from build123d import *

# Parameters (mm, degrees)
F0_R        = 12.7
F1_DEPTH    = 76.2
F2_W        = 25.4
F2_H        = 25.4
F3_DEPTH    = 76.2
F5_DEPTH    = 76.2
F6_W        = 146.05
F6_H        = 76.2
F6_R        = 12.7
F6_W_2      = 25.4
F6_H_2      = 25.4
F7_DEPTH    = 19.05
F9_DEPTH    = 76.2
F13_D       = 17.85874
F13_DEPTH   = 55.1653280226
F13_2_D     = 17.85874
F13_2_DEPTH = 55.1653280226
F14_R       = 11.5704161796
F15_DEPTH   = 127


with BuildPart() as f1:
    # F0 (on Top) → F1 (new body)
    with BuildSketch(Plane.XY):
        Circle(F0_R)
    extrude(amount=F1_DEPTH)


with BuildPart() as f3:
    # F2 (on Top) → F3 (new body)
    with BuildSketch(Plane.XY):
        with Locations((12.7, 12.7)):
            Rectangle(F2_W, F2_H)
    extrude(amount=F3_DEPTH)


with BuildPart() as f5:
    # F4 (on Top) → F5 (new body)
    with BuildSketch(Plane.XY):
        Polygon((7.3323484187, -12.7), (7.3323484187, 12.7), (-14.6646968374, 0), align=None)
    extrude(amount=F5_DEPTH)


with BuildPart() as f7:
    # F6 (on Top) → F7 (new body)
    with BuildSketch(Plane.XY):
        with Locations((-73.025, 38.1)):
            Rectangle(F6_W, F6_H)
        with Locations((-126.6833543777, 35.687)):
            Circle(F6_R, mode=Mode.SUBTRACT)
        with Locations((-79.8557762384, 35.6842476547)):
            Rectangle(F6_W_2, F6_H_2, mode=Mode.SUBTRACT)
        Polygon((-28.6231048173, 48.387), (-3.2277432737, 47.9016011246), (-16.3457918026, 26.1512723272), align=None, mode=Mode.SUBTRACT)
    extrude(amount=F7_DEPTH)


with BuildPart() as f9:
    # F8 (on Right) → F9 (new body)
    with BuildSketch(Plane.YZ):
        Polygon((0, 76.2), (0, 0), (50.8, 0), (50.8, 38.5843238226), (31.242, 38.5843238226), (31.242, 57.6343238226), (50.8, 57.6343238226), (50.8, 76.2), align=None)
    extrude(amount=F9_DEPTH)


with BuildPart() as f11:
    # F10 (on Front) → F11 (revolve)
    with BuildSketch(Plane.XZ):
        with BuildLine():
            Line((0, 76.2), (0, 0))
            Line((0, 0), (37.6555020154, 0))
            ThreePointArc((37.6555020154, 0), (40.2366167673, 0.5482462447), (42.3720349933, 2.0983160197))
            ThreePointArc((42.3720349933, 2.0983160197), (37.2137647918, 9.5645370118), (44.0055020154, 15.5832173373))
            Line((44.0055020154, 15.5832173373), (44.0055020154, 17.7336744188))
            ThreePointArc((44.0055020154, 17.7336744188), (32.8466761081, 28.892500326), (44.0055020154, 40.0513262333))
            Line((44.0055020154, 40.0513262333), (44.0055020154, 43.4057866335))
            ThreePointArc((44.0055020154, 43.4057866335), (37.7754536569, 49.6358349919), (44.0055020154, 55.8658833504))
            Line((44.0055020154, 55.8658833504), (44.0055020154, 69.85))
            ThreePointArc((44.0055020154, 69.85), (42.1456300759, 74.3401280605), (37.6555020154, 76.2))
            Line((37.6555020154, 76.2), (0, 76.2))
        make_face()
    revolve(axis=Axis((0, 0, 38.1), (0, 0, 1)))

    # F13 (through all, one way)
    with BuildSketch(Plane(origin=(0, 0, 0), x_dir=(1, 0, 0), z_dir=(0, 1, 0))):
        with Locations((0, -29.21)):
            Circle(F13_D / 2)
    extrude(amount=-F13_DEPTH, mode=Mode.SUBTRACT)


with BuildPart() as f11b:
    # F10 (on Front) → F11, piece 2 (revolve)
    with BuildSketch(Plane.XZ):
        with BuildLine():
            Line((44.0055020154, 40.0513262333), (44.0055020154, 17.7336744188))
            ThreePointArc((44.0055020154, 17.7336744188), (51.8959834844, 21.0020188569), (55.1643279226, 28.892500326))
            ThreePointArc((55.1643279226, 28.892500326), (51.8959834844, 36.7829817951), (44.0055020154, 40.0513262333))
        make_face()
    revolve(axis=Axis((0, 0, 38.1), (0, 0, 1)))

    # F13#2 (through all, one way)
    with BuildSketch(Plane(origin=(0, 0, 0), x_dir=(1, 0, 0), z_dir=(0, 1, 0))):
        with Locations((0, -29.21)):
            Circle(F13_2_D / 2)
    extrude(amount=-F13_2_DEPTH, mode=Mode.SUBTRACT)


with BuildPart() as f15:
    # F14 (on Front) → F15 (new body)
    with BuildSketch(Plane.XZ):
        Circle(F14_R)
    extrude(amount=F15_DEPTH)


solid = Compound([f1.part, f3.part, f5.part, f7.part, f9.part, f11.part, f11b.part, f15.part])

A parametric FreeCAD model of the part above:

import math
import FreeCAD as App
import Part
import Sketcher
from FreeCAD import Vector
Q = App.Units.Quantity


def add_polygon(sketch, points):
    """Adds a closed chain of lines whose ends are joined by coincident constraints."""
    first, n = sketch.GeometryCount, len(points)
    for a, b in zip(points, points[1:] + points[:1]):
        sketch.addGeometry(Part.LineSegment(App.Vector(*a, 0), App.Vector(*b, 0)), False)
    for i in range(n):
        sketch.addConstraint(Sketcher.Constraint("Coincident", first + i, 2, first + (i + 1) % n, 1))

doc = App.newDocument("Part")
body = doc.addObject("PartDesign::Body", "Body")

sketch1 = body.newObject("Sketcher::SketchObject", "Sketch")
sketch1.AttachmentSupport = (doc.getObject("XY_Plane"), [""])
sketch1.MapMode = "FlatFace"
sketch1.addGeometry(Part.Circle(Vector(0, 0, 0), Vector(0, 0, 1), 12.7), False)
sketch1.addConstraint([
    Sketcher.Constraint("Coincident", 0, 3, -1, 1),
    Sketcher.Constraint("Diameter", 0, Q("1 in")),
])
pad1 = body.newObject("PartDesign::Pad", "Pad")
pad1.Profile = sketch1
pad1.Length = Q("3 in")
body2 = doc.addObject("PartDesign::Body", "Body001")

sketch2 = body2.newObject("Sketcher::SketchObject", "Sketch001")
sketch2.AttachmentSupport = (doc.getObject("XY_Plane001"), [""])
sketch2.MapMode = "FlatFace"
add_polygon(sketch2, [(0, 25.4), (0, 0), (25.4, 0), (25.4, 25.4)])
sketch2.addConstraint([
    Sketcher.Constraint("Vertical", 0),
    Sketcher.Constraint("Horizontal", 1),
    Sketcher.Constraint("Vertical", 2),
    Sketcher.Constraint("Horizontal", 3),
    Sketcher.Constraint("Coincident", 0, 2, -1, 1),
    Sketcher.Constraint("Equal", 3, 0),
    Sketcher.Constraint("DistanceX", 1, 1, 1, 2, Q("1 in")),
])
pad2 = body2.newObject("PartDesign::Pad", "Pad001")
pad2.Profile = sketch2
pad2.Length = Q("3 in")
body3 = doc.addObject("PartDesign::Body", "Body002")

sketch3 = body3.newObject("Sketcher::SketchObject", "Sketch002")
sketch3.AttachmentSupport = (doc.getObject("XY_Plane002"), [""])
sketch3.MapMode = "FlatFace"
add_polygon(sketch3, [(7.332348, -12.7), (7.332348, 12.7), (-14.664697, 0)])
sketch3.addConstraint([
    Sketcher.Constraint("Vertical", 0),
    Sketcher.Constraint("PointOnObject", 1, 2, -1),
    Sketcher.Constraint("Equal", 1, 2),
    Sketcher.Constraint("DistanceY", 0, 1, 0, 2, Q("1 in")),
    Sketcher.Constraint("Distance", 1, Q("1 in")),
    Sketcher.Constraint("DistanceX", -1, 1, 0, 2, 7.332348),
])
pad3 = body3.newObject("PartDesign::Pad", "Pad002")
pad3.Profile = sketch3
pad3.Length = Q("3 in")
body4 = doc.addObject("PartDesign::Body", "Body003")

sketch4 = body4.newObject("Sketcher::SketchObject", "Sketch003")
sketch4.AttachmentSupport = (doc.getObject("XY_Plane003"), [""])
sketch4.MapMode = "FlatFace"
add_polygon(sketch4, [(-146.05, 76.2), (-146.05, 0), (0, 0), (0, 76.2)])
add_polygon(sketch4, [(-67.155776, 22.984248), (-92.555776, 22.984248), (-92.555776, 48.384248), (-67.155776, 48.384248)])
sketch4.addGeometry(Part.Circle(Vector(-126.683354, 35.687, 0), Vector(0, 0, 1), 12.7), False)
add_polygon(sketch4, [(-16.345792, 26.151272), (-28.623105, 48.387), (-3.227743, 47.901601)])
sketch4.addConstraint([
    Sketcher.Constraint("Vertical", 0),
    Sketcher.Constraint("Horizontal", 1),
    Sketcher.Constraint("Vertical", 2),
    Sketcher.Constraint("Horizontal", 3),
    Sketcher.Constraint("Horizontal", 4),
    Sketcher.Constraint("Vertical", 5),
    Sketcher.Constraint("Horizontal", 6),
    Sketcher.Constraint("Vertical", 7),
    Sketcher.Constraint("Coincident", 1, 2, -1, 1),
    Sketcher.Constraint("Equal", 6, 5),
    Sketcher.Constraint("Equal", 9, 10),
    Sketcher.Constraint("Equal", 10, 11),
    Sketcher.Constraint("Diameter", 8, Q("1 in")),
    Sketcher.Constraint("DistanceX", 4, 2, 4, 1, Q("1 in")),
    Sketcher.Constraint("DistanceY", 0, 2, 0, 1, Q("3 in")),
    Sketcher.Constraint("Distance", 9, Q("1 in")),
    Sketcher.Constraint("DistanceX", 1, 1, 1, 2, Q("5.75 in")),
    Sketcher.Constraint("DistanceY", -1, 1, 8, 3, Q("1.405 in")),
    Sketcher.Constraint("DistanceY", -1, 1, 9, 2, Q("1.905 in")),
    Sketcher.Constraint("DistanceY", -1, 1, 10, 2, 47.901601),
    Sketcher.Constraint("DistanceX", 11, 2, -1, 1, 16.345792),
    Sketcher.Constraint("DistanceX", 8, 3, 4, 2, 34.127578),
    Sketcher.Constraint("DistanceX", 6, 2, 9, 2, 38.532671),
    Sketcher.Constraint("DistanceY", -1, 1, 4, 2, 22.984248),
])
pad4 = body4.newObject("PartDesign::Pad", "Pad003")
pad4.Profile = sketch4
pad4.Length = Q("0.75 in")
body5 = doc.addObject("PartDesign::Body", "Body004")

sketch5 = body5.newObject("Sketcher::SketchObject", "Sketch004")
sketch5.AttachmentSupport = (doc.getObject("YZ_Plane004"), [""])
sketch5.MapMode = "FlatFace"
add_polygon(sketch5, [(0, 76.2), (0, 0), (50.8, 0), (50.8, 38.584324), (31.242, 38.584324), (31.242, 57.634324), (50.8, 57.634324), (50.8, 76.2)])
sketch5.addConstraint([
    Sketcher.Constraint("Vertical", 0),
    Sketcher.Constraint("Horizontal", 1),
    Sketcher.Constraint("Vertical", 2),
    Sketcher.Constraint("Horizontal", 3),
    Sketcher.Constraint("Vertical", 4),
    Sketcher.Constraint("Horizontal", 5),
    Sketcher.Constraint("Vertical", 6),
    Sketcher.Constraint("Horizontal", 7),
    Sketcher.Constraint("Coincident", 0, 2, -1, 1),
    Sketcher.Constraint("Vertical", 2, 2, 5, 2),
    Sketcher.Constraint("DistanceX", 1, 1, 1, 2, Q("2 in")),
    Sketcher.Constraint("DistanceY", 0, 2, 0, 1, Q("3 in")),
    Sketcher.Constraint("DistanceX", 3, 2, 3, 1, Q("0.77 in")),
    Sketcher.Constraint("DistanceY", 4, 1, 4, 2, Q("0.75 in")),
    Sketcher.Constraint("DistanceY", 2, 1, 2, 2, 38.584324),
])
pad5 = body5.newObject("PartDesign::Pad", "Pad004")
pad5.Profile = sketch5
pad5.Length = Q("3 in")
body6 = doc.addObject("PartDesign::Body", "Body005")

sketch6 = body6.newObject("Sketcher::SketchObject", "Sketch005")
sketch6.AttachmentSupport = (doc.getObject("XZ_Plane005"), [""])
sketch6.MapMode = "FlatFace"
sketch6.addGeometry([
    Part.LineSegment(Vector(0, 76.2, 0), Vector(0, 0, 0)),
    Part.LineSegment(Vector(0, 0, 0), Vector(37.655502, 0, 0)),
    Part.ArcOfCircle(Part.Circle(Vector(37.655502, 6.35, 0), Vector(0, 0, 1), 6.35), math.radians(-90), math.radians(-42.032847)),
    Part.ArcOfCircle(Part.Circle(Vector(44.005502, 8.741833, 0), Vector(0, 0, 1), 6.841384), math.radians(90), math.radians(256.186477)),
    Part.LineSegment(Vector(44.005502, 15.583217, 0), Vector(44.005502, 17.733674, 0)),
    Part.ArcOfCircle(Part.Circle(Vector(44.005502, 28.8925, 0), Vector(0, 0, 1), 11.158826), math.radians(90), math.radians(270)),
    Part.LineSegment(Vector(44.005502, 40.051326, 0), Vector(44.005502, 43.405787, 0)),
    Part.ArcOfCircle(Part.Circle(Vector(44.005502, 49.635835, 0), Vector(0, 0, 1), 6.230048), math.radians(90), math.radians(270)),
    Part.LineSegment(Vector(44.005502, 55.865883, 0), Vector(44.005502, 69.85, 0)),
    Part.ArcOfCircle(Part.Circle(Vector(37.655502, 69.85, 0), Vector(0, 0, 1), 6.35), math.radians(0), math.radians(90)),
    Part.LineSegment(Vector(37.655502, 76.2, 0), Vector(0, 76.2, 0)),
], False)
sketch6.addConstraint([
    Sketcher.Constraint("Coincident", 0, 2, 1, 1),
    Sketcher.Constraint("Tangent", 1, 2, 2, 1),
    Sketcher.Constraint("Coincident", 2, 2, 3, 2),
    Sketcher.Constraint("Coincident", 3, 1, 4, 1),
    Sketcher.Constraint("Coincident", 4, 2, 5, 2),
    Sketcher.Constraint("Coincident", 5, 1, 6, 1),
    Sketcher.Constraint("Coincident", 6, 2, 7, 2),
    Sketcher.Constraint("Coincident", 7, 1, 8, 1),
    Sketcher.Constraint("Tangent", 8, 2, 9, 1),
    Sketcher.Constraint("Tangent", 9, 2, 10, 1),
    Sketcher.Constraint("Coincident", 10, 2, 0, 1),
    Sketcher.Constraint("Vertical", 0),
    Sketcher.Constraint("Horizontal", 1),
    Sketcher.Constraint("Vertical", 4),
    Sketcher.Constraint("Vertical", 6),
    Sketcher.Constraint("Vertical", 8),
    Sketcher.Constraint("Horizontal", 10),
    Sketcher.Constraint("Coincident", 0, 2, -1, 1),
    Sketcher.Constraint("Equal", 2, 9),
    Sketcher.Constraint("Vertical", 3, 3, 5, 3),
    Sketcher.Constraint("Vertical", 5, 3, 7, 3),
    Sketcher.Constraint("Vertical", 2, 3, 9, 3),
    Sketcher.Constraint("Vertical", 7, 3, 3, 1),
    Sketcher.Constraint("Vertical", 4, 2, 5, 1),
    Sketcher.Constraint("Vertical", 6, 2, 7, 1),
    Sketcher.Constraint("DistanceY", 0, 2, 0, 1, Q("3 in")),
    Sketcher.Constraint("Radius", 2, Q("0.25 in")),
    Sketcher.Constraint("DistanceY", 3, 3, 7, 3, Q("1.6100001 in")),
    Sketcher.Constraint("DistanceX", 1, 1, 1, 2, Q("1.4825001 in")),
    Sketcher.Constraint("Radius", 7, 6.230048),
    Sketcher.Constraint("DistanceY", -1, 1, 5, 3, Q("1.1375 in")),
    Sketcher.Constraint("Radius", 3, 6.841384),
    Sketcher.Constraint("Radius", 5, 11.158826),
    Sketcher.Constraint("DistanceY", 6, 1, 6, 2, 3.35446),
])
revolution = body6.newObject("PartDesign::Revolution", "Revolution")
revolution.Profile = sketch6
revolution.ReferenceAxis = (sketch6, ["V_Axis"])
revolution.Angle = 360

sketch7 = body6.newObject("Sketcher::SketchObject", "Sketch006")
sketch7.AttachmentSupport = (doc.getObject("XZ_Plane005"), [""])
sketch7.MapMode = "FlatFace"
sketch7.addGeometry(Part.Circle(Vector(0, 29.21, 0), Vector(0, 0, 1), 8.92937), False)
sketch7.addConstraint([
    Sketcher.Constraint("PointOnObject", 0, 3, -2),
    Sketcher.Constraint("Diameter", 0, Q("0.7031 in")),
    Sketcher.Constraint("DistanceY", -1, 1, 0, 3, Q("1.15 in")),
])
pocket1 = body6.newObject("PartDesign::Pocket", "Pocket")
pocket1.Profile = sketch7
pocket1.Type = "ThroughAll"
pocket1.Reversed = True
body7 = doc.addObject("PartDesign::Body", "Body006")

sketch8 = body7.newObject("Sketcher::SketchObject", "Sketch007")
sketch8.AttachmentSupport = (doc.getObject("XZ_Plane006"), [""])
sketch8.MapMode = "FlatFace"
sketch8.addGeometry([
    Part.LineSegment(Vector(44.005502, 40.051326, 0), Vector(44.005502, 17.733674, 0)),
    Part.ArcOfCircle(Part.Circle(Vector(44.005502, 28.8925, 0), Vector(0, 0, 1), 11.158826), math.radians(-90), math.radians(0)),
    Part.ArcOfCircle(Part.Circle(Vector(44.005502, 28.8925, 0), Vector(0, 0, 1), 11.158826), math.radians(0), math.radians(90)),
], False)
sketch8.addConstraint([
    Sketcher.Constraint("Coincident", 0, 2, 1, 1),
    Sketcher.Constraint("Tangent", 1, 2, 2, 1),
    Sketcher.Constraint("Coincident", 2, 2, 0, 1),
    Sketcher.Constraint("Vertical", 0),
    Sketcher.Constraint("Equal", 1, 2),
    Sketcher.Constraint("Horizontal", 2, 3, 1, 2),
    Sketcher.Constraint("Vertical", 2, 3, 0, 2),
    Sketcher.Constraint("DistanceX", -1, 1, 1, 3, Q("1.7325001 in")),
    Sketcher.Constraint("DistanceY", -1, 1, 1, 3, Q("1.1375 in")),
    Sketcher.Constraint("Radius", 1, 11.158826),
])
revolution2 = body7.newObject("PartDesign::Revolution", "Revolution001")
revolution2.Profile = sketch8
revolution2.ReferenceAxis = (sketch8, ["V_Axis"])
revolution2.Angle = 360

sketch9 = body7.newObject("Sketcher::SketchObject", "Sketch008")
sketch9.AttachmentSupport = (doc.getObject("XZ_Plane006"), [""])
sketch9.MapMode = "FlatFace"
sketch9.addGeometry(Part.Circle(Vector(0, 29.21, 0), Vector(0, 0, 1), 8.92937), False)
sketch9.addConstraint([
    Sketcher.Constraint("PointOnObject", 0, 3, -2),
    Sketcher.Constraint("Diameter", 0, Q("0.7031 in")),
    Sketcher.Constraint("DistanceY", -1, 1, 0, 3, Q("1.15 in")),
])
pocket2 = body7.newObject("PartDesign::Pocket", "Pocket001")
pocket2.Profile = sketch9
pocket2.Type = "ThroughAll"
pocket2.Reversed = True
body8 = doc.addObject("PartDesign::Body", "Body007")

sketch10 = body8.newObject("Sketcher::SketchObject", "Sketch009")
sketch10.AttachmentSupport = (doc.getObject("XZ_Plane007"), [""])
sketch10.MapMode = "FlatFace"
sketch10.addGeometry(Part.Circle(Vector(0, 0, 0), Vector(0, 0, 1), 11.570416), False)
sketch10.addConstraint([
    Sketcher.Constraint("Coincident", 0, 3, -1, 1),
    Sketcher.Constraint("Diameter", 0, 23.140832),
])
pad6 = body8.newObject("PartDesign::Pad", "Pad005")
pad6.Profile = sketch10
pad6.Length = Q("5 in")

doc.recompute()
